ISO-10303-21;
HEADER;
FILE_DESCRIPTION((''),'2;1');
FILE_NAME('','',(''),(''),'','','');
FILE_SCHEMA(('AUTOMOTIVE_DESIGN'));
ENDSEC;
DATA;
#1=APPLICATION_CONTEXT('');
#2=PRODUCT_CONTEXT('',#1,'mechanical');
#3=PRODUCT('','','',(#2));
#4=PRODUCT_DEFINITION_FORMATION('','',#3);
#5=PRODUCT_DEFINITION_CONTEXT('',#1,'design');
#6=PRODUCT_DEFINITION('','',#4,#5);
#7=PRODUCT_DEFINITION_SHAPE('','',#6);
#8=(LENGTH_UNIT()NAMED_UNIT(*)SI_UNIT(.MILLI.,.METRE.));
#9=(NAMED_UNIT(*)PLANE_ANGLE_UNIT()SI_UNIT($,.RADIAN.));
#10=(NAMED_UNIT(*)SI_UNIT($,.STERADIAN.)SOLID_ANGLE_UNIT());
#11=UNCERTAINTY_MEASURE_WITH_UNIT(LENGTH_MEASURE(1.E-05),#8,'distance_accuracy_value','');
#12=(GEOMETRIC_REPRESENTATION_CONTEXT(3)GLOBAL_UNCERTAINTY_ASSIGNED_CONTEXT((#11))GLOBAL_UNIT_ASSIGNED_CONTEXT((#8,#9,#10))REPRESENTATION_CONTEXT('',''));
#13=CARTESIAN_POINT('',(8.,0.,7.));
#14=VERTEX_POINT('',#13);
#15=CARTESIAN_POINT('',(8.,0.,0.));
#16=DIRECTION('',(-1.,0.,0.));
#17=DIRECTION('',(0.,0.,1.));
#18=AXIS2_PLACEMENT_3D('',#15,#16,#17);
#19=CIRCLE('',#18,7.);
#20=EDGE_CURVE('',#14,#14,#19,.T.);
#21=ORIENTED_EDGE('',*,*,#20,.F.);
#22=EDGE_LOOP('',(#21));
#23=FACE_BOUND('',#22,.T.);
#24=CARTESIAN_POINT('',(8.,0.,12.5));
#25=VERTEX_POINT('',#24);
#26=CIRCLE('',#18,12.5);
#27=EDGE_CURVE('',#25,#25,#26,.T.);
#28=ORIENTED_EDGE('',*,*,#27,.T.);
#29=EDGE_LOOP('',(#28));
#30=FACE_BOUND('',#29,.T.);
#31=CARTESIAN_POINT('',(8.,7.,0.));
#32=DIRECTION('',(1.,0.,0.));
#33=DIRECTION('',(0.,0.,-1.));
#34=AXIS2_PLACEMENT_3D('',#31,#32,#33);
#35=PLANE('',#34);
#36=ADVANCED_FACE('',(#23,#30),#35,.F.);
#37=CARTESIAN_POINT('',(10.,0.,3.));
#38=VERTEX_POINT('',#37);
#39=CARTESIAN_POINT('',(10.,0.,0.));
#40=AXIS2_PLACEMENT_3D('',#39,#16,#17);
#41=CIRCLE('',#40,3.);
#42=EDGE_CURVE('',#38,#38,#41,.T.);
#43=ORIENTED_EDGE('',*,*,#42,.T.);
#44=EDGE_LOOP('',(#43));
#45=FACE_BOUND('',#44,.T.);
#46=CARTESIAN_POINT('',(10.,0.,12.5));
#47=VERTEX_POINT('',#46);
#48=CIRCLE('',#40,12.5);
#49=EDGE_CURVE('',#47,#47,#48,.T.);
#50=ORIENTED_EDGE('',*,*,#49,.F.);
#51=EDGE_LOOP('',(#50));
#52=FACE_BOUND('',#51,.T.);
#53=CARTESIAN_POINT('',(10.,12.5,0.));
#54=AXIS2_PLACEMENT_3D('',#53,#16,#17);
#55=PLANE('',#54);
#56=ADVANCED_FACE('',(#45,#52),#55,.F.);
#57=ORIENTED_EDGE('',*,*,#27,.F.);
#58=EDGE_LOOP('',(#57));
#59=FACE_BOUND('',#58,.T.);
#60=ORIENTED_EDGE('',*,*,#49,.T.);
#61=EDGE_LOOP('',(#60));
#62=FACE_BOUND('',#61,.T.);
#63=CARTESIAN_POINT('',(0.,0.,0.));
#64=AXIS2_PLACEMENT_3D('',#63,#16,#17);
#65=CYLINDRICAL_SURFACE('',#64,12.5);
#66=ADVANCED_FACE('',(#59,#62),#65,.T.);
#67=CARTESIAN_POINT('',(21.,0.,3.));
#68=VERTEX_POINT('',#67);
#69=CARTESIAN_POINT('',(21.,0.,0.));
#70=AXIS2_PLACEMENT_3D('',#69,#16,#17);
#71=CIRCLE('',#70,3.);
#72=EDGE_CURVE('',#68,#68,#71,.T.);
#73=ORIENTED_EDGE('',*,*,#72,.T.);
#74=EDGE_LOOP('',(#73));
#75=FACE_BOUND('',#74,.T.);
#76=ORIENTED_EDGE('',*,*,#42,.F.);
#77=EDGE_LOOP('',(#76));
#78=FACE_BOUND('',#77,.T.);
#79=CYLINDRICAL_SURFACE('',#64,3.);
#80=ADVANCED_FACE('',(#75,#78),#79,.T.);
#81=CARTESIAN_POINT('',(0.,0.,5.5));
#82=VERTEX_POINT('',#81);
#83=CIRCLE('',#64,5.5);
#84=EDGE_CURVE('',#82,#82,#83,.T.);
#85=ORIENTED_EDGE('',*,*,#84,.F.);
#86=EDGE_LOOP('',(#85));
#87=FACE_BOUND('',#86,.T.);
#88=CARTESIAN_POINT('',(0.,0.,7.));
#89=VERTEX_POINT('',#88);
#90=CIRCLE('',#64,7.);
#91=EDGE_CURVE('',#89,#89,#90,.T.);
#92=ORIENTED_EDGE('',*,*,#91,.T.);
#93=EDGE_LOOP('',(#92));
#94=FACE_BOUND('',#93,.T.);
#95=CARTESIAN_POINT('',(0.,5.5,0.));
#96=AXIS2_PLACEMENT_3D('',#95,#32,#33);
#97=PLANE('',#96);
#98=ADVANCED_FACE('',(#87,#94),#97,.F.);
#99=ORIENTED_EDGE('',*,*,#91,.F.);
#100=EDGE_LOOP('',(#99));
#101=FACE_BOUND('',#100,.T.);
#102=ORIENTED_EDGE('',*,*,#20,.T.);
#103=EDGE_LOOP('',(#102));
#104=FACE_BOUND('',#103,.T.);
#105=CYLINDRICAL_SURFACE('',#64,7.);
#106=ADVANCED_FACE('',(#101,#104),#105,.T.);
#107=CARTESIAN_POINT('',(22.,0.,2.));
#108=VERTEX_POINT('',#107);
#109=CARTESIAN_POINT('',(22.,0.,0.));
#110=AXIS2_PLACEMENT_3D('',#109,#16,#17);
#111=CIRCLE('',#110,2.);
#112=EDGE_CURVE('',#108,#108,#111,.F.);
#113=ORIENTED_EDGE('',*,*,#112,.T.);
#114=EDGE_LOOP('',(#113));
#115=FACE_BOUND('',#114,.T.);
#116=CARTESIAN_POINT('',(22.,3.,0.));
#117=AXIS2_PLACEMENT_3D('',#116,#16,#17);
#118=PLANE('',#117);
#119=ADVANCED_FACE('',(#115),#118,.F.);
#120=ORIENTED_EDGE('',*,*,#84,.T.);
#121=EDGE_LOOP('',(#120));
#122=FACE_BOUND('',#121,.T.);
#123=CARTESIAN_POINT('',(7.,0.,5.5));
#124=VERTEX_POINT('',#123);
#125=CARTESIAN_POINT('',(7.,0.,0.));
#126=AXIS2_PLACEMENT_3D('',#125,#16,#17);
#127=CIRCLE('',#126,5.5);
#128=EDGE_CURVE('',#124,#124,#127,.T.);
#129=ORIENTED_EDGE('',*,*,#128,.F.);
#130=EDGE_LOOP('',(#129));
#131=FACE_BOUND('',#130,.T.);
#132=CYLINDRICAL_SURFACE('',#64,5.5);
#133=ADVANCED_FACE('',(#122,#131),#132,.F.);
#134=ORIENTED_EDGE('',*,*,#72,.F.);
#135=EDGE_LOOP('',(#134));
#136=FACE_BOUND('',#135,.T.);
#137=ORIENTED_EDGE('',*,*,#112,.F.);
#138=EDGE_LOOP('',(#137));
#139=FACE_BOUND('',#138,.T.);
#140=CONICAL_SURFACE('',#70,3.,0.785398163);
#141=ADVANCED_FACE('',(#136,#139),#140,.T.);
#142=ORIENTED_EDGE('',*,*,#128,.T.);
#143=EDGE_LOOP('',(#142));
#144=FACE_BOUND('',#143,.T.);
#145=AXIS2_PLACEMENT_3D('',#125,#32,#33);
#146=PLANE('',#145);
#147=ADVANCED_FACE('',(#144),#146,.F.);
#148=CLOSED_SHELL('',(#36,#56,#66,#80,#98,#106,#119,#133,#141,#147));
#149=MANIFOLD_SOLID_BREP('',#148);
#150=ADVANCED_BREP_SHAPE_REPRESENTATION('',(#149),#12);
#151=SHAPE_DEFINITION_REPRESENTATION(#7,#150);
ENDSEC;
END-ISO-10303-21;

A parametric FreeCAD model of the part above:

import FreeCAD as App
import Part
import Sketcher
Q = App.Units.Quantity


def edges_at(feature, points):
    """Names of the edges that pass closest to the given points."""
    edges = feature.Shape.Edges
    near = lambda p: min(range(len(edges)), key=lambda i: edges[i].distToShape(Part.Vertex(*p))[0])
    return sorted({f"Edge{near(p) + 1}" for p in points})


def add_polygon(sketch, points):
    """Adds a closed chain of lines whose ends are joined by coincident constraints."""
    first, n = sketch.GeometryCount, len(points)
    for a, b in zip(points, points[1:] + points[:1]):
        sketch.addGeometry(Part.LineSegment(App.Vector(*a, 0), App.Vector(*b, 0)), False)
    for i in range(n):
        sketch.addConstraint(Sketcher.Constraint("Coincident", first + i, 2, first + (i + 1) % n, 1))

doc = App.newDocument("Part")
params = doc.addObject("Spreadsheet::Sheet", "Params")
for row, (alias, value) in enumerate([
    ("sketch1_width", "15 mm"),
    ("sketch1_width2", "12 mm"),
    ("sketch1_width3", "2 mm"),
    ("sketch1_width4", "8 mm"),
    ("sketch1_height", "3 mm"),
    ("revolution_angle", "360 deg"),
    ("chamfer_size", "1 mm"),
], start=1):
    params.set(f"A{row}", alias)
    params.set(f"B{row}", "=" + value)
    params.setAlias(f"B{row}", alias)

body = doc.addObject("PartDesign::Body", "Body")

# Sketch on XY plane
sketch1 = body.newObject("Sketcher::SketchObject", "Sketch")
sketch1.AttachmentSupport = (doc.getObject("XY_Plane"), [""])
sketch1.MapMode = "FlatFace"
add_polygon(sketch1, [(7, 5.5), (7, 0), (22, 0), (22, 3), (10, 3), (10, 12.5), (8, 12.5), (8, 7), (0, 7), (0, 5.5)])  # lines 0-9
sketch1.addConstraint(Sketcher.Constraint("Vertical", 0))
sketch1.addConstraint(Sketcher.Constraint("Horizontal", 1))
sketch1.addConstraint(Sketcher.Constraint("Vertical", 2))
sketch1.addConstraint(Sketcher.Constraint("Horizontal", 3))
sketch1.addConstraint(Sketcher.Constraint("Vertical", 4))
sketch1.addConstraint(Sketcher.Constraint("Horizontal", 5))
sketch1.addConstraint(Sketcher.Constraint("Vertical", 6))
sketch1.addConstraint(Sketcher.Constraint("Horizontal", 7))
sketch1.addConstraint(Sketcher.Constraint("Vertical", 8))
sketch1.addConstraint(Sketcher.Constraint("Horizontal", 9))
sketch1.addConstraint(Sketcher.Constraint("PointOnObject", 0, 2, -1))
sketch1.addConstraint(Sketcher.Constraint("PointOnObject", 7, 2, -2))
sketch1.addConstraint(Sketcher.Constraint("Equal", 0, 6))
sketch1.addConstraint(Sketcher.Constraint("DistanceX", 1, 1, 1, 2, Q("15 mm")))
sketch1.addConstraint(Sketcher.Constraint("DistanceX", 3, 2, 3, 1, Q("12 mm")))
sketch1.addConstraint(Sketcher.Constraint("DistanceX", 5, 2, 5, 1, Q("2 mm")))
sketch1.addConstraint(Sketcher.Constraint("DistanceX", 7, 2, 7, 1, Q("8 mm")))
sketch1.addConstraint(Sketcher.Constraint("DistanceY", 2, 1, 2, 2, Q("3 mm")))
sketch1.addConstraint(Sketcher.Constraint("DistanceY", 0, 2, 0, 1, Q("5.5 mm")))
sketch1.addConstraint(Sketcher.Constraint("DistanceY", 4, 1, 4, 2, Q("9.5 mm")))
sketch1.setExpression("Constraints[23]", "Params.sketch1_width")
sketch1.setExpression("Constraints[24]", "Params.sketch1_width2")
sketch1.setExpression("Constraints[25]", "Params.sketch1_width3")
sketch1.setExpression("Constraints[26]", "Params.sketch1_width4")
sketch1.setExpression("Constraints[27]", "Params.sketch1_height")
revolution = body.newObject("PartDesign::Revolution", "Revolution")
revolution.Profile = sketch1
revolution.ReferenceAxis = (sketch1, ["H_Axis"])
revolution.setExpression("Angle", "Params.revolution_angle")
doc.recompute()

chamfer = body.newObject("PartDesign::Chamfer", "Chamfer")
chamfer.Base = (revolution, edges_at(revolution, [(22, 0, -3)]))
chamfer.setExpression("Size", "Params.chamfer_size")

doc.recompute()
